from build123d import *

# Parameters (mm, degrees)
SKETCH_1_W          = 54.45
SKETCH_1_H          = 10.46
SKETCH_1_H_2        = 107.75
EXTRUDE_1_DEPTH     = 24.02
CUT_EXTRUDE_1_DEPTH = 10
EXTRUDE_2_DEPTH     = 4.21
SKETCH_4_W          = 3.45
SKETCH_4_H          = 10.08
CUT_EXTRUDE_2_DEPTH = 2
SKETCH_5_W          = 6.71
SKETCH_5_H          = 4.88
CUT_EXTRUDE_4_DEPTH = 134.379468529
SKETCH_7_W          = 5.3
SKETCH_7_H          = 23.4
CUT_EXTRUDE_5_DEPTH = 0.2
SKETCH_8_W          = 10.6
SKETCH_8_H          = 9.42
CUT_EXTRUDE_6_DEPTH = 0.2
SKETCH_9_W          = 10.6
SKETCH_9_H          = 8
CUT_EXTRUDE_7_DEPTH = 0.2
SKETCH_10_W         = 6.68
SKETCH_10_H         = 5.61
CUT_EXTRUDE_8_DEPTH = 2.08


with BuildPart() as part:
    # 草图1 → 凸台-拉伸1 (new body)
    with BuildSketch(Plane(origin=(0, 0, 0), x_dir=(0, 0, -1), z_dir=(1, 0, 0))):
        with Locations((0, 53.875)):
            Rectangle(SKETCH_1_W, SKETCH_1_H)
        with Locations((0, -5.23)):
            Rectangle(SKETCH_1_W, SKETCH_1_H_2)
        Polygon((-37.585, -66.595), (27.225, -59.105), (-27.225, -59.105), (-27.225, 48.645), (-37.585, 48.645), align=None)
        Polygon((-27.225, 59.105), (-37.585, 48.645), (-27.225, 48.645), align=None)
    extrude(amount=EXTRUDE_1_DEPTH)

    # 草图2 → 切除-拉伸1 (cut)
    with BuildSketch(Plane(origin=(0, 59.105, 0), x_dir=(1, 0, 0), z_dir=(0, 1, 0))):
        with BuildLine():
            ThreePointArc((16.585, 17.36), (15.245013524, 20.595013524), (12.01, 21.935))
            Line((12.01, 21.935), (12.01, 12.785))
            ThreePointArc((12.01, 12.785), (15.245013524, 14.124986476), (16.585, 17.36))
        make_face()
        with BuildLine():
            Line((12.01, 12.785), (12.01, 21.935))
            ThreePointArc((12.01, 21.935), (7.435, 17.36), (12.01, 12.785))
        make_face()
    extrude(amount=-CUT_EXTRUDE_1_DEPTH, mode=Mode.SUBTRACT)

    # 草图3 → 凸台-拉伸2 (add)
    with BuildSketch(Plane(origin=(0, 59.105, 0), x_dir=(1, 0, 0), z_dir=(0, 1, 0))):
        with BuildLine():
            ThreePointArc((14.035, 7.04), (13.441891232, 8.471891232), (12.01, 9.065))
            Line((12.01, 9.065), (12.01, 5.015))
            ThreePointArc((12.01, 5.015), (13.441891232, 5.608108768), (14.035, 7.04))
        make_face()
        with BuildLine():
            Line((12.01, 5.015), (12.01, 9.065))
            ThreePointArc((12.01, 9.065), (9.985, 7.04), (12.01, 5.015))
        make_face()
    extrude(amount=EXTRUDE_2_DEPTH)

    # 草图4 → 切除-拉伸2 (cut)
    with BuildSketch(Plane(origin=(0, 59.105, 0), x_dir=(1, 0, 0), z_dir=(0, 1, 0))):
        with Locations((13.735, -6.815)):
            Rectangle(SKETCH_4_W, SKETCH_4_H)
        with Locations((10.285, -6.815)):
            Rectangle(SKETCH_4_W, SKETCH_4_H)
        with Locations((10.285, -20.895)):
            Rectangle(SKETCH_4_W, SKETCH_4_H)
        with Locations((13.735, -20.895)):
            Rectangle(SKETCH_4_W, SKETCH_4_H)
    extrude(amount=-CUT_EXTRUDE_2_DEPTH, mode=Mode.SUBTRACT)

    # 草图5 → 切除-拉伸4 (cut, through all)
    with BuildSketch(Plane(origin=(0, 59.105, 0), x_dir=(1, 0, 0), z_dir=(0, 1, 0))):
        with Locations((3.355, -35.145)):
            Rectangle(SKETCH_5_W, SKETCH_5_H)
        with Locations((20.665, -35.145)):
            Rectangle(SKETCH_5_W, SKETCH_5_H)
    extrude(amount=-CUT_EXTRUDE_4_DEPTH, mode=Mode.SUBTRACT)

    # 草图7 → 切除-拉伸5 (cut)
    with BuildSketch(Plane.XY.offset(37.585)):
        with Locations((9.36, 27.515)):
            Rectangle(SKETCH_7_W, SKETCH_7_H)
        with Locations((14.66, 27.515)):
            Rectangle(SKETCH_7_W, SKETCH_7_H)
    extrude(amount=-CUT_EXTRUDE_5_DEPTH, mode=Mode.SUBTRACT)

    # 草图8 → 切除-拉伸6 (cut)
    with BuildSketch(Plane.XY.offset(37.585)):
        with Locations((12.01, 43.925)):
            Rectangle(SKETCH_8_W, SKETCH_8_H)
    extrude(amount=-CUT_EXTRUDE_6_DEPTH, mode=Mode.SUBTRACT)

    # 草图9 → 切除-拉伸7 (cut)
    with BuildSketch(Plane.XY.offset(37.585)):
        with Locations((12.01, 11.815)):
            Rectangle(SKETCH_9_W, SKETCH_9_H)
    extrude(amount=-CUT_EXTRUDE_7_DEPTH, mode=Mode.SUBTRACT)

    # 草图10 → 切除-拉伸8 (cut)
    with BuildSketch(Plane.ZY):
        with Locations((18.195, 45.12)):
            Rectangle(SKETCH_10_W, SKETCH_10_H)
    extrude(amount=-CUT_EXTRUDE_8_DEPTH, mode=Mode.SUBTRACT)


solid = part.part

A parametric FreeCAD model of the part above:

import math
import FreeCAD as App
import Part
import Sketcher

V = App.Vector

doc = App.newDocument("Part")
params = doc.addObject("Spreadsheet::Sheet", "Params")
for row, (alias, value) in enumerate([
    ("sketch1_width", "115.24 mm"),
    ("sketch1_width2", "118.21 mm"),
    ("sketch1_height", "54.45 mm"),
    ("pad1_length", "24.02 mm"),
    ("pocket1_length", "10 mm"),
    ("pad2_length", "4.21 mm"),
    ("sketch4_width", "6.9 mm"),
    ("sketch4_height", "10.08 mm"),
    ("pocket2_length", "2 mm"),
    ("sketch5_width", "6.71 mm"),
    ("sketch5_height", "4.88 mm"),
    ("sketch6_width", "10.6 mm"),
    ("sketch6_height", "23.4 mm"),
    ("pocket4_length", "0.2 mm"),
    ("sketch7_width", "10.6 mm"),
    ("sketch7_height", "9.42 mm"),
    ("pocket5_length", "0.2 mm"),
    ("sketch8_height", "8 mm"),
    ("sketch8_width", "10.6 mm"),
    ("pocket6_length", "0.2 mm"),
    ("sketch9_width", "5.61 mm"),
    ("sketch9_height", "6.68 mm"),
    ("pocket7_length", "2.08 mm"),
], start=1):
    params.set(f"A{row}", alias)
    params.set(f"B{row}", "=" + value)
    params.setAlias(f"B{row}", alias)

body = doc.addObject("PartDesign::Body", "Body")

sketch1 = body.newObject("Sketcher::SketchObject", "Sketch")
sketch1.AttachmentSupport = (doc.getObject("YZ_Plane"), [""])
sketch1.MapMode = "FlatFace"
sketch1.addGeometry([
    Part.LineSegment(V(49, 38, 0), V(-67, 38, 0)),
    Part.LineSegment(V(-67, 38, 0), V(-59, -27, 0)),
    Part.LineSegment(V(-59, -27, 0), V(59, -27, 0)),
    Part.LineSegment(V(59, -27, 0), V(59, 27, 0)),
    Part.LineSegment(V(59, 27, 0), V(49, 38, 0)),
], False)
sketch1.addConstraint([
    Sketcher.Constraint("Coincident", 0, 2, 1, 1),
    Sketcher.Constraint("Coincident", 1, 2, 2, 1),
    Sketcher.Constraint("Coincident", 2, 2, 3, 1),
    Sketcher.Constraint("Coincident", 3, 2, 4, 1),
    Sketcher.Constraint("Coincident", 4, 2, 0, 1),
    Sketcher.Constraint("Horizontal", 0),
    Sketcher.Constraint("Horizontal", 2),
    Sketcher.Constraint("Vertical", 3),
    Sketcher.Constraint("Symmetric", 1, 2, 3, 2, -1, 1),
    Sketcher.Constraint("DistanceX", 0, 2, 0, 1, 115.24),
    Sketcher.Constraint("DistanceX", 2, 1, 2, 2, 118.21),
    Sketcher.Constraint("DistanceY", 3, 1, 3, 2, 54.45),
    Sketcher.Constraint("DistanceX", 0, 2, 2, 2, 125.7),
    Sketcher.Constraint("DistanceY", 1, 2, 0, 2, 64.81),
])
sketch1.setExpression("Constraints[9]", "Params.sketch1_width")
sketch1.setExpression("Constraints[10]", "Params.sketch1_width2")
sketch1.setExpression("Constraints[11]", "Params.sketch1_height")
pad1 = body.newObject("PartDesign::Pad", "Pad")
pad1.Profile = sketch1
pad1.setExpression("Length", "Params.pad1_length")

sketch2 = body.newObject("Sketcher::SketchObject", "Sketch001")
sketch2.AttachmentSupport = (doc.getObject("XZ_Plane"), [""])
sketch2.MapMode = "FlatFace"
sketch2.AttachmentOffset = App.Placement(V(0, 0, -59.105), App.Rotation())
sketch2.addGeometry([
    Part.ArcOfCircle(Part.Circle(V(12, -17.4, 0), V(0, 0, 1), 4.6), math.radians(-90), math.radians(0)),
    Part.ArcOfCircle(Part.Circle(V(12, -17.4, 0), V(0, 0, 1), 4.6), math.radians(90), math.radians(270)),
    Part.ArcOfCircle(Part.Circle(V(12, -17.4, 0), V(0, 0, 1), 4.6), math.radians(0), math.radians(90)),
], False)
sketch2.addConstraint([
    Sketcher.Constraint("Tangent", 0, 1, 1, 2),
    Sketcher.Constraint("Tangent", 1, 1, 2, 2),
    Sketcher.Constraint("Tangent", 2, 1, 0, 2),
    Sketcher.Constraint("Horizontal", 1, 3, 2, 1),
    Sketcher.Constraint("Vertical", 2, 3, 0, 1),
    Sketcher.Constraint("Vertical", 0, 1, 1, 1),
    Sketcher.Constraint("Radius", 0, 4.575),
    Sketcher.Constraint("DistanceX", -1, 1, 0, 3, 12.01),
    Sketcher.Constraint("DistanceY", 0, 3, -1, 1, 17.36),
])
pocket1 = body.newObject("PartDesign::Pocket", "Pocket")
pocket1.Profile = sketch2
pocket1.setExpression("Length", "Params.pocket1_length")
pocket1.Reversed = True

sketch3 = body.newObject("Sketcher::SketchObject", "Sketch002")
sketch3.AttachmentSupport = (doc.getObject("XZ_Plane"), [""])
sketch3.MapMode = "FlatFace"
sketch3.AttachmentOffset = App.Placement(V(0, 0, -59.105), App.Rotation())
sketch3.addGeometry([
    Part.ArcOfCircle(Part.Circle(V(12, -7, 0), V(0, 0, 1), 2), math.radians(-90), math.radians(0)),
    Part.ArcOfCircle(Part.Circle(V(12, -7, 0), V(0, 0, 1), 2), math.radians(90), math.radians(270)),
    Part.ArcOfCircle(Part.Circle(V(12, -7, 0), V(0, 0, 1), 2), math.radians(0), math.radians(90)),
], False)
sketch3.addConstraint([
    Sketcher.Constraint("Tangent", 0, 1, 1, 2),
    Sketcher.Constraint("Tangent", 1, 1, 2, 2),
    Sketcher.Constraint("Tangent", 2, 1, 0, 2),
    Sketcher.Constraint("Horizontal", 1, 3, 2, 1),
    Sketcher.Constraint("Vertical", 2, 3, 0, 1),
    Sketcher.Constraint("Vertical", 0, 1, 1, 1),
    Sketcher.Constraint("Radius", 0, 2.025),
    Sketcher.Constraint("DistanceX", -1, 1, 0, 3, 12.01),
    Sketcher.Constraint("DistanceY", 0, 3, -1, 1, 7.04),
])
pad2 = body.newObject("PartDesign::Pad", "Pad001")
pad2.Profile = sketch3
pad2.setExpression("Length", "Params.pad2_length")
pad2.Reversed = True

sketch4 = body.newObject("Sketcher::SketchObject", "Sketch003")
sketch4.AttachmentSupport = (doc.getObject("XZ_Plane"), [""])
sketch4.MapMode = "FlatFace"
sketch4.AttachmentOffset = App.Placement(V(0, 0, -59.105), App.Rotation())
sketch4.addGeometry([
    Part.LineSegment(V(15, 12, 0), V(15, 2, 0)),
    Part.LineSegment(V(15, 2, 0), V(9, 2, 0)),
    Part.LineSegment(V(9, 2, 0), V(9, 12, 0)),
    Part.LineSegment(V(9, 12, 0), V(15, 12, 0)),
    Part.LineSegment(V(9, 16, 0), V(9, 26, 0)),
    Part.LineSegment(V(9, 26, 0), V(15, 26, 0)),
    Part.LineSegment(V(15, 26, 0), V(15, 16, 0)),
    Part.LineSegment(V(15, 16, 0), V(9, 16, 0)),
], False)
sketch4.addConstraint([
    Sketcher.Constraint("Coincident", 0, 2, 1, 1),
    Sketcher.Constraint("Coincident", 1, 2, 2, 1),
    Sketcher.Constraint("Coincident", 2, 2, 3, 1),
    Sketcher.Constraint("Coincident", 3, 2, 0, 1),
    Sketcher.Constraint("Coincident", 4, 2, 5, 1),
    Sketcher.Constraint("Coincident", 5, 2, 6, 1),
    Sketcher.Constraint("Coincident", 6, 2, 7, 1),
    Sketcher.Constraint("Coincident", 7, 2, 4, 1),
    Sketcher.Constraint("Vertical", 0),
    Sketcher.Constraint("Horizontal", 1),
    Sketcher.Constraint("Vertical", 2),
    Sketcher.Constraint("Horizontal", 3),
    Sketcher.Constraint("Vertical", 4),
    Sketcher.Constraint("Horizontal", 5),
    Sketcher.Constraint("Vertical", 6),
    Sketcher.Constraint("Horizontal", 7),
    Sketcher.Constraint("Vertical", 2, 2, 4, 2),
    Sketcher.Constraint("Vertical", 3, 2, 5, 2),
    Sketcher.Constraint("Equal", 2, 4),
    Sketcher.Constraint("DistanceX", 1, 2, 1, 1, 6.9),
    Sketcher.Constraint("DistanceY", 3, 2, 6, 2, 4.0),
    Sketcher.Constraint("DistanceY", 0, 2, 0, 1, 10.08),
    Sketcher.Constraint("DistanceX", -1, 1, 0, 2, 15.46),
    Sketcher.Constraint("DistanceY", -1, 1, 0, 2, 1.775),
])
sketch4.setExpression("Constraints[19]", "Params.sketch4_width")
sketch4.setExpression("Constraints[21]", "Params.sketch4_height")
pocket2 = body.newObject("PartDesign::Pocket", "Pocket001")
pocket2.Profile = sketch4
pocket2.setExpression("Length", "Params.pocket2_length")
pocket2.Reversed = True

sketch5 = body.newObject("Sketcher::SketchObject", "Sketch004")
sketch5.AttachmentSupport = (doc.getObject("XZ_Plane"), [""])
sketch5.MapMode = "FlatFace"
sketch5.AttachmentOffset = App.Placement(V(0, 0, -59.105), App.Rotation())
sketch5.addGeometry([
    Part.LineSegment(V(0, 32.7, 0), V(0, 37.6, 0)),
    Part.LineSegment(V(0, 37.6, 0), V(6.7, 37.6, 0)),
    Part.LineSegment(V(6.7, 37.6, 0), V(6.7, 32.7, 0)),
    Part.LineSegment(V(6.7, 32.7, 0), V(0, 32.7, 0)),
    Part.LineSegment(V(17.3, 32.7, 0), V(17.3, 37.6, 0)),
    Part.LineSegment(V(17.3, 37.6, 0), V(24, 37.6, 0)),
    Part.LineSegment(V(24, 37.6, 0), V(24, 32.7, 0)),
    Part.LineSegment(V(24, 32.7, 0), V(17.3, 32.7, 0)),
], False)
sketch5.addConstraint([
    Sketcher.Constraint("Coincident", 0, 2, 1, 1),
    Sketcher.Constraint("Coincident", 1, 2, 2, 1),
    Sketcher.Constraint("Coincident", 2, 2, 3, 1),
    Sketcher.Constraint("Coincident", 3, 2, 0, 1),
    Sketcher.Constraint("Coincident", 4, 2, 5, 1),
    Sketcher.Constraint("Coincident", 5, 2, 6, 1),
    Sketcher.Constraint("Coincident", 6, 2, 7, 1),
    Sketcher.Constraint("Coincident", 7, 2, 4, 1),
    Sketcher.Constraint("Vertical", 0),
    Sketcher.Constraint("Horizontal", 1),
    Sketcher.Constraint("Vertical", 2),
    Sketcher.Constraint("Horizontal", 3),
    Sketcher.Constraint("Vertical", 4),
    Sketcher.Constraint("Horizontal", 5),
    Sketcher.Constraint("Vertical", 6),
    Sketcher.Constraint("Horizontal", 7),
    Sketcher.Constraint("PointOnObject", 0, 2, -2),
    Sketcher.Constraint("Horizontal", 1, 2, 4, 2),
    Sketcher.Constraint("Horizontal", 3, 2, 6, 2),
    Sketcher.Constraint("Equal", 3, 5),
    Sketcher.Constraint("DistanceX", 1, 1, 1, 2, 6.71),
    Sketcher.Constraint("DistanceY", 0, 1, 0, 2, 4.88),
    Sketcher.Constraint("DistanceX", 1, 2, 4, 2, 10.6),
    Sketcher.Constraint("DistanceY", -1, 1, 0, 2, 37.585),
])
sketch5.setExpression("Constraints[20]", "Params.sketch5_width")
sketch5.setExpression("Constraints[21]", "Params.sketch5_height")
pocket3 = body.newObject("PartDesign::Pocket", "Pocket002")
pocket3.Profile = sketch5
pocket3.Type = "ThroughAll"
pocket3.Reversed = True

sketch6 = body.newObject("Sketcher::SketchObject", "Sketch005")
sketch6.AttachmentSupport = (doc.getObject("XY_Plane"), [""])
sketch6.MapMode = "FlatFace"
sketch6.AttachmentOffset = App.Placement(V(0, 0, 37.585), App.Rotation())
sketch6.addGeometry([
    Part.LineSegment(V(7, 39, 0), V(7, 16, 0)),
    Part.LineSegment(V(7, 16, 0), V(17, 16, 0)),
    Part.LineSegment(V(17, 16, 0), V(17, 39, 0)),
    Part.LineSegment(V(17, 39, 0), V(7, 39, 0)),
], False)
sketch6.addConstraint([
    Sketcher.Constraint("Coincident", 0, 2, 1, 1),
    Sketcher.Constraint("Coincident", 1, 2, 2, 1),
    Sketcher.Constraint("Coincident", 2, 2, 3, 1),
    Sketcher.Constraint("Coincident", 3, 2, 0, 1),
    Sketcher.Constraint("Vertical", 0),
    Sketcher.Constraint("Horizontal", 1),
    Sketcher.Constraint("Vertical", 2),
    Sketcher.Constraint("Horizontal", 3),
    Sketcher.Constraint("DistanceX", 1, 1, 1, 2, 10.6),
    Sketcher.Constraint("DistanceY", 0, 2, 0, 1, 23.4),
    Sketcher.Constraint("DistanceX", -1, 1, 0, 2, 6.71),
    Sketcher.Constraint("DistanceY", -1, 1, 0, 2, 15.815),
])
sketch6.setExpression("Constraints[8]", "Params.sketch6_width")
sketch6.setExpression("Constraints[9]", "Params.sketch6_height")
pocket4 = body.newObject("PartDesign::Pocket", "Pocket003")
pocket4.Profile = sketch6
pocket4.setExpression("Length", "Params.pocket4_length")

sketch7 = body.newObject("Sketcher::SketchObject", "Sketch006")
sketch7.AttachmentSupport = (doc.getObject("XY_Plane"), [""])
sketch7.MapMode = "FlatFace"
sketch7.AttachmentOffset = App.Placement(V(0, 0, 37.585), App.Rotation())
sketch7.addGeometry([
    Part.LineSegment(V(7, 49, 0), V(7, 39, 0)),
    Part.LineSegment(V(7, 39, 0), V(17, 39, 0)),
    Part.LineSegment(V(17, 39, 0), V(17, 49, 0)),
    Part.LineSegment(V(17, 49, 0), V(7, 49, 0)),
], False)
sketch7.addConstraint([
    Sketcher.Constraint("Coincident", 0, 2, 1, 1),
    Sketcher.Constraint("Coincident", 1, 2, 2, 1),
    Sketcher.Constraint("Coincident", 2, 2, 3, 1),
    Sketcher.Constraint("Coincident", 3, 2, 0, 1),
    Sketcher.Constraint("Vertical", 0),
    Sketcher.Constraint("Horizontal", 1),
    Sketcher.Constraint("Vertical", 2),
    Sketcher.Constraint("Horizontal", 3),
    Sketcher.Constraint("DistanceX", 1, 1, 1, 2, 10.6),
    Sketcher.Constraint("DistanceY", 0, 2, 0, 1, 9.42),
    Sketcher.Constraint("DistanceX", -1, 1, 0, 2, 6.71),
    Sketcher.Constraint("DistanceY", -1, 1, 0, 2, 39.215),
])
sketch7.setExpression("Constraints[8]", "Params.sketch7_width")
sketch7.setExpression("Constraints[9]", "Params.sketch7_height")
pocket5 = body.newObject("PartDesign::Pocket", "Pocket004")
pocket5.Profile = sketch7
pocket5.setExpression("Length", "Params.pocket5_length")

sketch8 = body.newObject("Sketcher::SketchObject", "Sketch007")
sketch8.AttachmentSupport = (doc.getObject("XY_Plane"), [""])
sketch8.MapMode = "FlatFace"
sketch8.AttachmentOffset = App.Placement(V(0, 0, 37.585), App.Rotation())
sketch8.addGeometry([
    Part.LineSegment(V(7, 16, 0), V(7, 8, 0)),
    Part.LineSegment(V(7, 8, 0), V(17, 8, 0)),
    Part.LineSegment(V(17, 8, 0), V(17, 16, 0)),
    Part.LineSegment(V(17, 16, 0), V(7, 16, 0)),
], False)
sketch8.addConstraint([
    Sketcher.Constraint("Coincident", 0, 2, 1, 1),
    Sketcher.Constraint("Coincident", 1, 2, 2, 1),
    Sketcher.Constraint("Coincident", 2, 2, 3, 1),
    Sketcher.Constraint("Coincident", 3, 2, 0, 1),
    Sketcher.Constraint("Vertical", 0),
    Sketcher.Constraint("Horizontal", 1),
    Sketcher.Constraint("Vertical", 2),
    Sketcher.Constraint("Horizontal", 3),
    Sketcher.Constraint("DistanceY", 0, 2, 0, 1, 8.0),
    Sketcher.Constraint("DistanceX", 1, 1, 1, 2, 10.6),
    Sketcher.Constraint("DistanceX", -1, 1, 0, 2, 6.71),
    Sketcher.Constraint("DistanceY", -1, 1, 0, 2, 7.815),
])
sketch8.setExpression("Constraints[8]", "Params.sketch8_height")
sketch8.setExpression("Constraints[9]", "Params.sketch8_width")
pocket6 = body.newObject("PartDesign::Pocket", "Pocket005")
pocket6.Profile = sketch8
pocket6.setExpression("Length", "Params.pocket6_length")

sketch9 = body.newObject("Sketcher::SketchObject", "Sketch008")
sketch9.AttachmentSupport = (doc.getObject("YZ_Plane"), [""])
sketch9.MapMode = "FlatFace"
sketch9.addGeometry([
    Part.LineSegment(V(48, 15, 0), V(42, 15, 0)),
    Part.LineSegment(V(42, 15, 0), V(42, 22, 0)),
    Part.LineSegment(V(42, 22, 0), V(48, 22, 0)),
    Part.LineSegment(V(48, 22, 0), V(48, 15, 0)),
], False)
sketch9.addConstraint([
    Sketcher.Constraint("Coincident", 0, 2, 1, 1),
    Sketcher.Constraint("Coincident", 1, 2, 2, 1),
    Sketcher.Constraint("Coincident", 2, 2, 3, 1),
    Sketcher.Constraint("Coincident", 3, 2, 0, 1),
    Sketcher.Constraint("Horizontal", 0),
    Sketcher.Constraint("Vertical", 1),
    Sketcher.Constraint("Horizontal", 2),
    Sketcher.Constraint("Vertical", 3),
    Sketcher.Constraint("DistanceX", 0, 2, 0, 1, 5.61),
    Sketcher.Constraint("DistanceY", 1, 1, 1, 2, 6.68),
    Sketcher.Constraint("DistanceX", -1, 1, 0, 2, 42.315),
    Sketcher.Constraint("DistanceY", -1, 1, 0, 2, 14.855),
])
sketch9.setExpression("Constraints[8]", "Params.sketch9_width")
sketch9.setExpression("Constraints[9]", "Params.sketch9_height")
pocket7 = body.newObject("PartDesign::Pocket", "Pocket006")
pocket7.Profile = sketch9
pocket7.setExpression("Length", "Params.pocket7_length")
pocket7.Reversed = True

doc.recompute()
